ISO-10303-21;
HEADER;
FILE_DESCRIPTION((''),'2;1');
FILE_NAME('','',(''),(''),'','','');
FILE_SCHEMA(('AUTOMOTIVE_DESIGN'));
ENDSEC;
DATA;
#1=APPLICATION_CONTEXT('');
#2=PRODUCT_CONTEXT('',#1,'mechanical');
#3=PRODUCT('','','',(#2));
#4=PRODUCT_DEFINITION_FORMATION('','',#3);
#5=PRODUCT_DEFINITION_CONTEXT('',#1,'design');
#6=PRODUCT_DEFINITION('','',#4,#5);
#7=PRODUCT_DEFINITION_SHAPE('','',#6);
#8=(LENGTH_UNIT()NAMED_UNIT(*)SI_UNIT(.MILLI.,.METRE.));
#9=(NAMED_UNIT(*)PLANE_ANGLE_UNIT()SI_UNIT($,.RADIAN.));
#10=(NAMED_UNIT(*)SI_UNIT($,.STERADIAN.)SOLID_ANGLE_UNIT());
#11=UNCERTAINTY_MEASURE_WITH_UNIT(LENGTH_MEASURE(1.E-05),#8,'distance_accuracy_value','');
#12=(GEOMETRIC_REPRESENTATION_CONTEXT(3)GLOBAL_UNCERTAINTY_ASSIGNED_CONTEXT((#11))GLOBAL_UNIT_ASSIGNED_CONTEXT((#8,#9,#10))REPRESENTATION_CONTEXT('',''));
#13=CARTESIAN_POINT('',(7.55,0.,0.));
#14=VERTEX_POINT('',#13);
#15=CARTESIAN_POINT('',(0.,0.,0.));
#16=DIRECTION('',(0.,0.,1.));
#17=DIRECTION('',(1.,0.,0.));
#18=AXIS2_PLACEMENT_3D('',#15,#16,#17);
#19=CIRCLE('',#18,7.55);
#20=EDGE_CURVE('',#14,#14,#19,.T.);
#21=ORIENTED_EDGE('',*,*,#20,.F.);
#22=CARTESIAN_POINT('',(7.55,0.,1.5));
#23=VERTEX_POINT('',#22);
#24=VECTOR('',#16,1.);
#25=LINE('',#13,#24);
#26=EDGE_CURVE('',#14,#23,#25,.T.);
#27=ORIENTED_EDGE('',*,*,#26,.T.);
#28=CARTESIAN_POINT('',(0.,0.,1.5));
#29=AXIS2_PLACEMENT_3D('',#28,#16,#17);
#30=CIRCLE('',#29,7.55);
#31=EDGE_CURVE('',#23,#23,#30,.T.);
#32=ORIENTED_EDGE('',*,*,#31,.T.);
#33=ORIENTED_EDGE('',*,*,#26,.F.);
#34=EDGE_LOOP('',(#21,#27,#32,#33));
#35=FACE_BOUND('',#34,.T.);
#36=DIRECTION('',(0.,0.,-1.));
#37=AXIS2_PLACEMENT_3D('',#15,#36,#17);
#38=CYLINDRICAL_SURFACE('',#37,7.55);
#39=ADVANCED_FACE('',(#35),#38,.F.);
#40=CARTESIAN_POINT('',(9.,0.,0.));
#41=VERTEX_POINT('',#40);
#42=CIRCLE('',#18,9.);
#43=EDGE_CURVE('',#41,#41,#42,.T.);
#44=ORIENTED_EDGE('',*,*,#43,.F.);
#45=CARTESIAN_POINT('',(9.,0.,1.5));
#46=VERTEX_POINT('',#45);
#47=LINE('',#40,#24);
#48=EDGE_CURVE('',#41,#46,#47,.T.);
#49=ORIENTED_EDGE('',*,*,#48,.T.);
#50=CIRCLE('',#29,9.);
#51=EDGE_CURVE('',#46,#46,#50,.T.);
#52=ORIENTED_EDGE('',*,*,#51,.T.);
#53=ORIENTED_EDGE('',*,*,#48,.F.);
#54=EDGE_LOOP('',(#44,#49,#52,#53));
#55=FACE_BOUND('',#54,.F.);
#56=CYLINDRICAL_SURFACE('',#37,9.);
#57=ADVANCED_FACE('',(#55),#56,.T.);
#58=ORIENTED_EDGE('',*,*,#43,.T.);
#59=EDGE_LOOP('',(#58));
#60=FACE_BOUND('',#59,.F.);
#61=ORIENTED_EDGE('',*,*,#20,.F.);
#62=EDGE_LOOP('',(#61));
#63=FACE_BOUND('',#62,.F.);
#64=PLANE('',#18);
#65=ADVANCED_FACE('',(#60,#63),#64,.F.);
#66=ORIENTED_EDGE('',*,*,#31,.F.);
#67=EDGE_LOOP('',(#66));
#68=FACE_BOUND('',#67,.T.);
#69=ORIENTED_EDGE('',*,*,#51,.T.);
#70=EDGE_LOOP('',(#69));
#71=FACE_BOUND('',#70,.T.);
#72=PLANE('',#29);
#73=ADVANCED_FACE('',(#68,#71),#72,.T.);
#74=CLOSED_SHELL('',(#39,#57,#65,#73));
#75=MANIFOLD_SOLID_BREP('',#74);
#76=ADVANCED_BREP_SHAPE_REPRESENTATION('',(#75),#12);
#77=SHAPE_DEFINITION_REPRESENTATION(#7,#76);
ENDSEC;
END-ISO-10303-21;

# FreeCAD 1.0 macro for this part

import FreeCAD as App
import Part
import Sketcher

doc = App.newDocument("Part")
body = doc.addObject("PartDesign::Body", "Body")

# Sketch on XY plane
sketch1 = body.newObject("Sketcher::SketchObject", "Sketch")
sketch1.AttachmentSupport = (doc.getObject("XY_Plane"), [""])
sketch1.MapMode = "FlatFace"
sketch1.addGeometry([
    Part.Circle(App.Vector(0, 0, 0), App.Vector(0, 0, 1), 9),
    Part.Circle(App.Vector(0, 0, 0), App.Vector(0, 0, 1), 8),
], False)
sketch1.addConstraint([
    Sketcher.Constraint("Coincident", 0, 3, -1, 1),
    Sketcher.Constraint("Coincident", 1, 3, -1, 1),
    Sketcher.Constraint("Diameter", 0, 18.0),
    Sketcher.Constraint("Diameter", 1, 15.1),
])
pad1 = body.newObject("PartDesign::Pad", "Pad")
pad1.Profile = sketch1
pad1.Length = 1.5

doc.recompute()
